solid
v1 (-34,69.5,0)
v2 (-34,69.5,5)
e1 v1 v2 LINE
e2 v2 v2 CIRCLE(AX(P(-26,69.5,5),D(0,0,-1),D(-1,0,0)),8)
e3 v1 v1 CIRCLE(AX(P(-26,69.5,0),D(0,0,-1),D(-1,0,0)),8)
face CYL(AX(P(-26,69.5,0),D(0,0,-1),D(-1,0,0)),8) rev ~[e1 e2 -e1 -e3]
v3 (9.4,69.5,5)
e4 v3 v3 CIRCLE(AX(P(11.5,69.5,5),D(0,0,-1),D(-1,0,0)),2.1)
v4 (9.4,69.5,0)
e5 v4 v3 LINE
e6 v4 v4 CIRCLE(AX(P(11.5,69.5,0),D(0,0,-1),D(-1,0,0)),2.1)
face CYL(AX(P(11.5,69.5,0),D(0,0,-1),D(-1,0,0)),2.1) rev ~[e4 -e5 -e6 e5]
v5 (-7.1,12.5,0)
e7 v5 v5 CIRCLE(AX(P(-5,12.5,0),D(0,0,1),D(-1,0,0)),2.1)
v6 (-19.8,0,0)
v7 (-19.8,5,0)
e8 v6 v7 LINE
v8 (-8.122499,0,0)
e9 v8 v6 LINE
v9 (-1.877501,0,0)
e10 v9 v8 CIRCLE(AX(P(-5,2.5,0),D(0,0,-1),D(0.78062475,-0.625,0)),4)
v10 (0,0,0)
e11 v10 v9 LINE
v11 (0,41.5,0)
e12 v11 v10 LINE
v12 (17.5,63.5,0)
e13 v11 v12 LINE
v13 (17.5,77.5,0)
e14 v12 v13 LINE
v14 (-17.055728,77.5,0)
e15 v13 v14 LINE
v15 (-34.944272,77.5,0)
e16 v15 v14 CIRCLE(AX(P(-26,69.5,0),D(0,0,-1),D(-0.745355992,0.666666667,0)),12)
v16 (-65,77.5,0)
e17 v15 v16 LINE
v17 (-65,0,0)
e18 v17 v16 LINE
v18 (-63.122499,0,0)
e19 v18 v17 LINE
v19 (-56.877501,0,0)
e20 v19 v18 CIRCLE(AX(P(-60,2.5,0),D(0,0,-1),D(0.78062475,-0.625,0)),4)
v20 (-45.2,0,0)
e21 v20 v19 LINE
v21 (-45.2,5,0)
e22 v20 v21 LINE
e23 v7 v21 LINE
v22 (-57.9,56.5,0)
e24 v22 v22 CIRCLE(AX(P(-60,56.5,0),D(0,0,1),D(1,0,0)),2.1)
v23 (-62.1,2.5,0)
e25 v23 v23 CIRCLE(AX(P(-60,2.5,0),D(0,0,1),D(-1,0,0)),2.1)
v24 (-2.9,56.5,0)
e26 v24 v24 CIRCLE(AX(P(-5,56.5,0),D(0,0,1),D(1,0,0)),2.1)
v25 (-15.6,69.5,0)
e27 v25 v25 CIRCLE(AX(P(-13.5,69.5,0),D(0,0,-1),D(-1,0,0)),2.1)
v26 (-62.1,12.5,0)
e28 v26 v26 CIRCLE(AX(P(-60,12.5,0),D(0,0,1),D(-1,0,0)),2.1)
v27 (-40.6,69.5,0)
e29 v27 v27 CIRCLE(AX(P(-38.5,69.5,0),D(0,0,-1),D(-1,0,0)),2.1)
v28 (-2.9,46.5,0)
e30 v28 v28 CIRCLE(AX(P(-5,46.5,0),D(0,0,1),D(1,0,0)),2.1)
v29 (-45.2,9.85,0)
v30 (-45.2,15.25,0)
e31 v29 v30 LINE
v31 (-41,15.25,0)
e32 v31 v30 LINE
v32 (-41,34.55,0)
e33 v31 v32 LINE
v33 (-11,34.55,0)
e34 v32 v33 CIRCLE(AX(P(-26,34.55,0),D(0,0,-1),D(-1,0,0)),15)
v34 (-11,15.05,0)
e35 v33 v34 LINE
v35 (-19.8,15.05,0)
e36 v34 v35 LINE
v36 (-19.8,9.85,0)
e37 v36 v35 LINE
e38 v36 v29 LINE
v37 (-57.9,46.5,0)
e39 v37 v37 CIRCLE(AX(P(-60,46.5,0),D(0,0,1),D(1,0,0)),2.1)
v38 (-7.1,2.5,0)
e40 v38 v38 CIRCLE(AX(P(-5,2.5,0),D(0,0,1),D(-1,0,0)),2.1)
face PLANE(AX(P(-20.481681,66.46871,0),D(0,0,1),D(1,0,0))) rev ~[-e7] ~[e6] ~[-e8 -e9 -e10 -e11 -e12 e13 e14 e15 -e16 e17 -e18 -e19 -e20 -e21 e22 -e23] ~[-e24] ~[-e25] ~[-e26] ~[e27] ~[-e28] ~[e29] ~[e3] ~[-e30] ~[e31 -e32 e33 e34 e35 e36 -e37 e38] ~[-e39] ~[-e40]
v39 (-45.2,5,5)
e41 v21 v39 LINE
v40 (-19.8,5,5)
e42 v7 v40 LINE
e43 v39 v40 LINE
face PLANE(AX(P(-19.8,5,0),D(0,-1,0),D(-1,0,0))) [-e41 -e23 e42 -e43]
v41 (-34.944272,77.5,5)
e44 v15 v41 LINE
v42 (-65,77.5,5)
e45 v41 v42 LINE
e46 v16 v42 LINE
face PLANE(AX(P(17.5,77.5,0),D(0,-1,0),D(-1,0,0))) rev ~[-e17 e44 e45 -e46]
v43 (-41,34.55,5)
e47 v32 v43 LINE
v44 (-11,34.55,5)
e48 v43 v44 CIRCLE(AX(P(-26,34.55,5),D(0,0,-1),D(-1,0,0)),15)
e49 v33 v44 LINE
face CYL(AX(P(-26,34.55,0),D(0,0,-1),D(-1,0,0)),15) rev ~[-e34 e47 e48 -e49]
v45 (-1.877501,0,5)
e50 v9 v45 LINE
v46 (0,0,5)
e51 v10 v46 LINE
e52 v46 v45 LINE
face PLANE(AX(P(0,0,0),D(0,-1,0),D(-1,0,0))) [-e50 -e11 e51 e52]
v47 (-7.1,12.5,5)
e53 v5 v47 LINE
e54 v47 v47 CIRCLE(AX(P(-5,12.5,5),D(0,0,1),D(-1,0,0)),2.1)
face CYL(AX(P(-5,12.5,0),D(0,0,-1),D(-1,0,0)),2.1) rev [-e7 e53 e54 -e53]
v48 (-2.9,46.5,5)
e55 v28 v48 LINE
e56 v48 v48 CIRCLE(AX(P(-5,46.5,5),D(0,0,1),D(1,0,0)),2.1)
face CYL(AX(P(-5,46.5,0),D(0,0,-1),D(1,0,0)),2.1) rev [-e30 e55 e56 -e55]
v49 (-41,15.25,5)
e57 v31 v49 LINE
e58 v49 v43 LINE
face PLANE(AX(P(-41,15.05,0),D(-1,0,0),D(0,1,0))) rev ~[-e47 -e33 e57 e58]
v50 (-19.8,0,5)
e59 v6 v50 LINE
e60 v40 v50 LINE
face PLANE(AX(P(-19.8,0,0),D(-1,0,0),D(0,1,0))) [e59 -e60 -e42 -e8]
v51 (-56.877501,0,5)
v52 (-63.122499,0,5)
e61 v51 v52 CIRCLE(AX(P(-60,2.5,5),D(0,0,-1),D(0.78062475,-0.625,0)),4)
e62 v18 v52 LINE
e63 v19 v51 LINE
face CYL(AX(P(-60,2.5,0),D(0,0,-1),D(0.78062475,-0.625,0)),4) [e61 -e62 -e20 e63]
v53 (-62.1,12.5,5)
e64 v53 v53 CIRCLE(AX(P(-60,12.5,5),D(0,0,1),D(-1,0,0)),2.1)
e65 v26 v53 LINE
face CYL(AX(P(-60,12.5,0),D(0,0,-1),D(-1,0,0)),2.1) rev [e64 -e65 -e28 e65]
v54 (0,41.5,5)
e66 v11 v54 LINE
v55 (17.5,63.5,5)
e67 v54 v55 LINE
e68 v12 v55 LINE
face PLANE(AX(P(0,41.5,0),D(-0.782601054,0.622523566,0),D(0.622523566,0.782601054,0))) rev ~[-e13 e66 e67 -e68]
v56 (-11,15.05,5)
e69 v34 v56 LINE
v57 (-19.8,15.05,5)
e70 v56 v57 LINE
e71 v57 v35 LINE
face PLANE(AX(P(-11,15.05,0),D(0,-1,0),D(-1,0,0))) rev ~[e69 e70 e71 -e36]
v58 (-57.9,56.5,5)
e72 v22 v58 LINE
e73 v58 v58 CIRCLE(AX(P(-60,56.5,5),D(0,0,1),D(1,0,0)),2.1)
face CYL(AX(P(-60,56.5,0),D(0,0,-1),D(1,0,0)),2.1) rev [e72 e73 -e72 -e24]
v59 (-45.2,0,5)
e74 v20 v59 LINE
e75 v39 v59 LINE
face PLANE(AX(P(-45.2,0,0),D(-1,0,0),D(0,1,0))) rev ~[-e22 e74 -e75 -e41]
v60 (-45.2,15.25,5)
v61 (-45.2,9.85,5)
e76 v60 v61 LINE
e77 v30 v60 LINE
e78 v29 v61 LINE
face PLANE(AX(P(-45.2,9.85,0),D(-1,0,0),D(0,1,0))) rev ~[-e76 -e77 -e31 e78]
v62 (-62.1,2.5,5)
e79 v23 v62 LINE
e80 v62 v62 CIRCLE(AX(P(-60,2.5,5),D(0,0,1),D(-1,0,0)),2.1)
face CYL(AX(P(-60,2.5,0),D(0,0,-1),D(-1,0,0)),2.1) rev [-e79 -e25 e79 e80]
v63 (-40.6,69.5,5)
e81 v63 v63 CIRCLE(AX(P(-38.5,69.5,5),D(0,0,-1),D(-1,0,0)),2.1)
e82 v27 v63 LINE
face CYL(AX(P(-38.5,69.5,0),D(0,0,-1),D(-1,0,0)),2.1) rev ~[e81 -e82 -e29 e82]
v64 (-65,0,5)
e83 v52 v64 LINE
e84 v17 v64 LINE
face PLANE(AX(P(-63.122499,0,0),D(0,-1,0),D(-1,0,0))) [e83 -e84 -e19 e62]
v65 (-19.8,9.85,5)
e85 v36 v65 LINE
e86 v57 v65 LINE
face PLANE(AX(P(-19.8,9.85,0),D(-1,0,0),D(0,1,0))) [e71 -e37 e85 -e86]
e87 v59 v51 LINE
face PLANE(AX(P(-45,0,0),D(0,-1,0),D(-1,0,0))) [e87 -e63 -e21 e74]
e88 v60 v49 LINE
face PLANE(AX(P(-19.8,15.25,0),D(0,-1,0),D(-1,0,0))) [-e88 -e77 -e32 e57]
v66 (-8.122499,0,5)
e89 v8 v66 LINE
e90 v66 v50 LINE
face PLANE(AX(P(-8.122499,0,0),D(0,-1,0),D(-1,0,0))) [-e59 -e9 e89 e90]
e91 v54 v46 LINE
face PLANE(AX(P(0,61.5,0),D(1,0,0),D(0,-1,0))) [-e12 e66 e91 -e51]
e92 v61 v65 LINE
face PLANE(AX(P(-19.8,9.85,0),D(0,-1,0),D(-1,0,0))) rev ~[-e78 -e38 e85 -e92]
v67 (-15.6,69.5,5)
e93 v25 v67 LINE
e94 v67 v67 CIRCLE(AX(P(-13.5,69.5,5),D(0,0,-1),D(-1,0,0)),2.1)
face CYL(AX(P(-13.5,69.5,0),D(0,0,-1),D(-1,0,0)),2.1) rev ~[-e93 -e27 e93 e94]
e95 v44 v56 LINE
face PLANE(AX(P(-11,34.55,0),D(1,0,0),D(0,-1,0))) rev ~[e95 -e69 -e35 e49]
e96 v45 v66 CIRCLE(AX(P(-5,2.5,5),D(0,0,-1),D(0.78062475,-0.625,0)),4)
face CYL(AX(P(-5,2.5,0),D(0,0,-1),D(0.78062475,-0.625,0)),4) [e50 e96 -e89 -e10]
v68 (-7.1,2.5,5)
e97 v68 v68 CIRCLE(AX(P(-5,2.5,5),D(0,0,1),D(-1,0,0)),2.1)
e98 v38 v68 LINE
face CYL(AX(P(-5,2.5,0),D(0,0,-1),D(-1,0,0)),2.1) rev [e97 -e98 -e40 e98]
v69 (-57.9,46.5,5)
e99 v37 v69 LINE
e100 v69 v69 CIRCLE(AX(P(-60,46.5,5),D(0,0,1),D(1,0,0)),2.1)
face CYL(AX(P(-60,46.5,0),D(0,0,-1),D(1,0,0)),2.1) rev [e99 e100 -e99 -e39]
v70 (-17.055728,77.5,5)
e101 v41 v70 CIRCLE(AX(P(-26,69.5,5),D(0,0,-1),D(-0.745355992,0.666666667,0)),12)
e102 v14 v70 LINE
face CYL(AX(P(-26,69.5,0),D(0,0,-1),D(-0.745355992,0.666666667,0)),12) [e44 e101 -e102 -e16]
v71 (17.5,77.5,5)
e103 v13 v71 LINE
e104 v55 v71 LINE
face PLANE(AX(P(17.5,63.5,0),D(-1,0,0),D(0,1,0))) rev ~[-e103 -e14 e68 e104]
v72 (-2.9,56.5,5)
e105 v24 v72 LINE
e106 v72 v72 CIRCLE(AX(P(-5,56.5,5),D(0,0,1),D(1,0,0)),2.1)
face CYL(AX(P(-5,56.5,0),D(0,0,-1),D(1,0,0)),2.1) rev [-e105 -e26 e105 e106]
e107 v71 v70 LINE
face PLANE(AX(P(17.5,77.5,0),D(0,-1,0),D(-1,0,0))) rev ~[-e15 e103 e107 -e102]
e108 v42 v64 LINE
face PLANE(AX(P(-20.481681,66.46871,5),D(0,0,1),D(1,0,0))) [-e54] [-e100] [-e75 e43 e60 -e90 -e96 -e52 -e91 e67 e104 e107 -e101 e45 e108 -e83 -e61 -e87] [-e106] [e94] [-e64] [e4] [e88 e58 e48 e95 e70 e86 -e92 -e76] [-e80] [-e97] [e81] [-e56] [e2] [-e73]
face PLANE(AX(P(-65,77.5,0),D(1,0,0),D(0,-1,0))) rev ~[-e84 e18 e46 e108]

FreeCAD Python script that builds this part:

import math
import FreeCAD as App
import Part
import Sketcher
from FreeCAD import Vector
Q = App.Units.Quantity


def add_polygon(sketch, points):
    """Adds a closed chain of lines whose ends are joined by coincident constraints."""
    first, n = sketch.GeometryCount, len(points)
    for a, b in zip(points, points[1:] + points[:1]):
        sketch.addGeometry(Part.LineSegment(App.Vector(*a, 0), App.Vector(*b, 0)), False)
    for i in range(n):
        sketch.addConstraint(Sketcher.Constraint("Coincident", first + i, 2, first + (i + 1) % n, 1))

doc = App.newDocument("Part")
body = doc.addObject("PartDesign::Body", "Body")

# Sketch on XY plane
sketch1 = body.newObject("Sketcher::SketchObject", "Sketch")
sketch1.AttachmentSupport = (doc.getObject("XY_Plane"), [""])
sketch1.MapMode = "FlatFace"
sketch1.addGeometry(Part.LineSegment(Vector(0, 61.5, 0), Vector(-65, 61.5, 0)), False)  # 0
sketch1.addGeometry(Part.LineSegment(Vector(-65, 61.5, 0), Vector(-65, 0, 0)), False)  # 1
sketch1.addGeometry(Part.LineSegment(Vector(-65, 0, 0), Vector(-63.1, 0, 0)), False)  # 2
sketch1.addGeometry(Part.ArcOfCircle(Part.Circle(Vector(-60, 2.5, 0), Vector(0, 0, 1), 4), math.radians(-141), math.radians(-39)), False)  # 3
sketch1.addGeometry(Part.LineSegment(Vector(-56.9, 0, 0), Vector(-45, 0, 0)), False)  # 4
sketch1.addGeometry(Part.LineSegment(Vector(-45, 0, 0), Vector(-45, 5, 0)), False)  # 5
sketch1.addGeometry(Part.LineSegment(Vector(-45, 5, 0), Vector(-20, 5, 0)), False)  # 6
sketch1.addGeometry(Part.LineSegment(Vector(-20, 5, 0), Vector(-20, 0, 0)), False)  # 7
sketch1.addGeometry(Part.LineSegment(Vector(-20, 0, 0), Vector(-8.1, 0, 0)), False)  # 8
sketch1.addGeometry(Part.ArcOfCircle(Part.Circle(Vector(-5, 2.5, 0), Vector(0, 0, 1), 4), math.radians(-141), math.radians(-39)), False)  # 9
sketch1.addGeometry(Part.LineSegment(Vector(-1.9, 0, 0), Vector(0, 0, 0)), False)  # 10
sketch1.addGeometry(Part.LineSegment(Vector(0, 0, 0), Vector(0, 61.5, 0)), False)  # 11
sketch1.addGeometry(Part.Circle(Vector(-5, 2.5, 0), Vector(0, 0, 1), 2.1), False)  # 12
sketch1.addGeometry(Part.Circle(Vector(-5, 12.5, 0), Vector(0, 0, 1), 2.1), False)  # 13
add_polygon(sketch1, [(-45, 9.9), (-45, 15.1), (-20, 15.1), (-20, 9.9)])  # lines 14-17
sketch1.addGeometry(Part.Circle(Vector(-60, 2.5, 0), Vector(0, 0, 1), 2.1), False)  # 18
sketch1.addGeometry(Part.Circle(Vector(-60, 12.5, 0), Vector(0, 0, 1), 2.1), False)  # 19
sketch1.addGeometry(Part.Circle(Vector(-5, 46.5, 0), Vector(0, 0, 1), 2.1), False)  # 20
sketch1.addGeometry(Part.Circle(Vector(-5, 56.5, 0), Vector(0, 0, 1), 2.1), False)  # 21
sketch1.addGeometry(Part.Circle(Vector(-60, 46.5, 0), Vector(0, 0, 1), 2.1), False)  # 22
sketch1.addGeometry(Part.Circle(Vector(-60, 56.5, 0), Vector(0, 0, 1), 2.1), False)  # 23
sketch1.addConstraint([
    Sketcher.Constraint("Coincident", 0, 2, 1, 1),
    Sketcher.Constraint("Coincident", 1, 2, 2, 1),
    Sketcher.Constraint("Coincident", 2, 2, 3, 1),
    Sketcher.Constraint("Coincident", 3, 2, 4, 1),
    Sketcher.Constraint("Coincident", 4, 2, 5, 1),
    Sketcher.Constraint("Coincident", 5, 2, 6, 1),
    Sketcher.Constraint("Coincident", 6, 2, 7, 1),
    Sketcher.Constraint("Coincident", 7, 2, 8, 1),
    Sketcher.Constraint("Coincident", 8, 2, 9, 1),
    Sketcher.Constraint("Coincident", 9, 2, 10, 1),
    Sketcher.Constraint("Coincident", 10, 2, 11, 1),
    Sketcher.Constraint("Coincident", 11, 2, 0, 1),
    Sketcher.Constraint("Horizontal", 0),
    Sketcher.Constraint("Vertical", 1),
    Sketcher.Constraint("Horizontal", 2),
    Sketcher.Constraint("Horizontal", 4),
    Sketcher.Constraint("Vertical", 5),
    Sketcher.Constraint("Horizontal", 6),
    Sketcher.Constraint("Vertical", 7),
    Sketcher.Constraint("Horizontal", 8),
    Sketcher.Constraint("Horizontal", 10),
    Sketcher.Constraint("Vertical", 11),
    Sketcher.Constraint("Vertical", 14),
    Sketcher.Constraint("Horizontal", 15),
    Sketcher.Constraint("Vertical", 16),
    Sketcher.Constraint("Horizontal", 17),
    Sketcher.Constraint("Coincident", 10, 2, -1, 1),
    Sketcher.Constraint("Coincident", 12, 3, 9, 3),
    Sketcher.Constraint("Coincident", 18, 3, 3, 3),
    Sketcher.Constraint("Equal", 3, 9),
    Sketcher.Constraint("Equal", 12, 13),
    Sketcher.Constraint("Equal", 13, 18),
    Sketcher.Constraint("Equal", 18, 19),
    Sketcher.Constraint("Equal", 19, 20),
    Sketcher.Constraint("Equal", 20, 21),
    Sketcher.Constraint("Equal", 21, 22),
    Sketcher.Constraint("Equal", 22, 23),
    Sketcher.Constraint("PointOnObject", 1, 2, -1),
    Sketcher.Constraint("PointOnObject", 3, 2, -1),
    Sketcher.Constraint("PointOnObject", 7, 2, -1),
    Sketcher.Constraint("Horizontal", 3, 3, 9, 3),
    Sketcher.Constraint("Horizontal", 13, 3, 19, 3),
    Sketcher.Constraint("Horizontal", 20, 3, 22, 3),
    Sketcher.Constraint("Horizontal", 21, 3, 23, 3),
    Sketcher.Constraint("Vertical", 12, 3, 13, 3),
    Sketcher.Constraint("Vertical", 18, 3, 19, 3),
    Sketcher.Constraint("Vertical", 13, 3, 20, 3),
    Sketcher.Constraint("Vertical", 20, 3, 21, 3),
    Sketcher.Constraint("Vertical", 19, 3, 22, 3),
    Sketcher.Constraint("Vertical", 22, 3, 23, 3),
    Sketcher.Constraint("Vertical", 5, 2, 14, 2),
    Sketcher.Constraint("Vertical", 7, 2, 15, 2),
    Sketcher.Constraint("Equal", 4, 8),
    Sketcher.Constraint("Equal", 2, 10),
    Sketcher.Constraint("Radius", 3, Q("4 mm")),
    Sketcher.Constraint("Diameter", 12, Q("4.2 mm")),
    Sketcher.Constraint("DistanceX", 0, 2, 0, 1, Q("65 mm")),
    Sketcher.Constraint("DistanceX", 6, 1, 6, 2, Q("25 mm")),
    Sketcher.Constraint("DistanceY", 5, 1, 5, 2, Q("5 mm")),
    Sketcher.Constraint("DistanceY", 1, 2, 1, 1, Q("61.5 mm")),
    Sketcher.Constraint("DistanceY", 14, 1, 14, 2, Q("5.1 mm")),
    Sketcher.Constraint("DistanceX", 3, 3, -1, 1, Q("60 mm")),
    Sketcher.Constraint("DistanceY", 9, 3, 13, 3, Q("10 mm")),
    Sketcher.Constraint("DistanceY", 13, 3, 20, 3, Q("34 mm")),
    Sketcher.Constraint("DistanceY", 20, 3, 21, 3, Q("10 mm")),
    Sketcher.Constraint("DistanceY", 23, 3, 0, 2, Q("5 mm")),
    Sketcher.Constraint("DistanceY", -1, 1, 14, 2, Q("15.05 mm")),
])
pad1 = body.newObject("PartDesign::Pad", "Pad")
pad1.Profile = sketch1
pad1.Length = 5

# Sketch on XY plane
sketch2 = body.newObject("Sketcher::SketchObject", "Sketch001")
sketch2.AttachmentSupport = (doc.getObject("XY_Plane"), [""])
sketch2.MapMode = "FlatFace"
sketch2.addGeometry([
    Part.LineSegment(Vector(-41, 15, 0), Vector(-41, 35, 0)),
    Part.ArcOfCircle(Part.Circle(Vector(-26, 35, 0), Vector(0, 0, 1), 15), math.radians(0), math.radians(180)),
    Part.LineSegment(Vector(-11, 35, 0), Vector(-11, 15, 0)),
    Part.LineSegment(Vector(-11, 15, 0), Vector(-41, 15, 0)),
], False)
sketch2.addConstraint([
    Sketcher.Constraint("Tangent", 0, 2, 1, 2),
    Sketcher.Constraint("Tangent", 1, 1, 2, 1),
    Sketcher.Constraint("Coincident", 2, 2, 3, 1),
    Sketcher.Constraint("Coincident", 3, 2, 0, 1),
    Sketcher.Constraint("Vertical", 0),
    Sketcher.Constraint("Vertical", 2),
    Sketcher.Constraint("Horizontal", 3),
    Sketcher.Constraint("Radius", 1, Q("15 mm")),
    Sketcher.Constraint("DistanceY", 0, 1, 0, 2, Q("19.5 mm")),
    Sketcher.Constraint("DistanceX", 1, 3, -1, 1, Q("26 mm")),
    Sketcher.Constraint("DistanceY", -1, 1, 1, 3, Q("34.55 mm")),
])
pocket1 = body.newObject("PartDesign::Pocket", "Pocket")
pocket1.Profile = sketch2
pocket1.Length = 5
pocket1.Reversed = True

# Sketch on XY plane
sketch3 = body.newObject("Sketcher::SketchObject", "Sketch002")
sketch3.AttachmentSupport = (doc.getObject("XY_Plane"), [""])
sketch3.MapMode = "FlatFace"
add_polygon(sketch3, [(17.5, 63.5), (0, 41.5), (0, 61.5), (-65, 61.5), (-65, 77.5), (17.5, 77.5)])  # lines 0-5
sketch3.addGeometry(Part.Circle(Vector(-38.5, 69.5, 0), Vector(0, 0, 1), 2.1), False)  # 6
sketch3.addGeometry(Part.Circle(Vector(-26, 69.5, 0), Vector(0, 0, 1), 4), False)  # 7
sketch3.addGeometry(Part.Circle(Vector(-13.5, 69.5, 0), Vector(0, 0, 1), 2.1), False)  # 8
sketch3.addGeometry(Part.Circle(Vector(11.5, 69.5, 0), Vector(0, 0, 1), 2.1), False)  # 9
sketch3.addConstraint([
    Sketcher.Constraint("Vertical", 1),
    Sketcher.Constraint("Horizontal", 2),
    Sketcher.Constraint("Vertical", 3),
    Sketcher.Constraint("Horizontal", 4),
    Sketcher.Constraint("Vertical", 5),
    Sketcher.Constraint("Equal", 6, 8),
    Sketcher.Constraint("Equal", 8, 9),
    Sketcher.Constraint("PointOnObject", 0, 2, -2),
    Sketcher.Constraint("Horizontal", 6, 3, 7, 3),
    Sketcher.Constraint("Horizontal", 7, 3, 8, 3),
    Sketcher.Constraint("Horizontal", 8, 3, 9, 3),
    Sketcher.Constraint("Diameter", 7, Q("8 mm")),
    Sketcher.Constraint("Diameter", 6, Q("4.2 mm")),
    Sketcher.Constraint("DistanceX", 2, 2, 2, 1, Q("65 mm")),
    Sketcher.Constraint("DistanceY", 1, 1, 1, 2, Q("20 mm")),
    Sketcher.Constraint("DistanceY", 3, 1, 3, 2, Q("16 mm")),
    Sketcher.Constraint("DistanceY", 5, 2, 5, 1, Q("14 mm")),
    Sketcher.Constraint("DistanceX", 4, 1, 4, 2, Q("82.5 mm")),
    Sketcher.Constraint("DistanceX", 7, 3, -1, 1, Q("26 mm")),
    Sketcher.Constraint("DistanceX", 6, 3, 8, 3, Q("25 mm")),
    Sketcher.Constraint("DistanceX", 8, 3, 9, 3, Q("25 mm")),
    Sketcher.Constraint("DistanceY", 0, 2, 9, 3, Q("28 mm")),
    Sketcher.Constraint("DistanceX", 9, 3, 4, 2, Q("6 mm")),
    Sketcher.Constraint("DistanceY", -1, 1, 6, 3, Q("69.5 mm")),
])
pad2 = body.newObject("PartDesign::Pad", "Pad001")
pad2.Profile = sketch3
pad2.Length = 5

# Sketch on XY plane
sketch4 = body.newObject("Sketcher::SketchObject", "Sketch003")
sketch4.AttachmentSupport = (doc.getObject("XY_Plane"), [""])
sketch4.MapMode = "FlatFace"
add_polygon(sketch4, [(-20, 5), (-20, 0), (-45, 0), (-45, 5)])  # lines 0-3
add_polygon(sketch4, [(-20, 15), (-20, 10), (-45, 10), (-45, 15)])  # lines 4-7
sketch4.addConstraint([
    Sketcher.Constraint("Vertical", 0),
    Sketcher.Constraint("Horizontal", 1),
    Sketcher.Constraint("Vertical", 2),
    Sketcher.Constraint("Horizontal", 3),
    Sketcher.Constraint("Vertical", 4),
    Sketcher.Constraint("Horizontal", 5),
    Sketcher.Constraint("Vertical", 6),
    Sketcher.Constraint("Horizontal", 7),
    Sketcher.Constraint("PointOnObject", 0, 2, -1),
    Sketcher.Constraint("Vertical", 3, 2, 4, 2),
    Sketcher.Constraint("Vertical", 2, 2, 5, 2),
    Sketcher.Constraint("DistanceY", 0, 2, 0, 1, Q("5 mm")),
    Sketcher.Constraint("DistanceX", 1, 2, 1, 1, Q("25.4 mm")),
    Sketcher.Constraint("DistanceY", 4, 2, 4, 1, Q("5.4 mm")),
    Sketcher.Constraint("DistanceX", 0, 2, -1, 1, Q("19.8 mm")),
    Sketcher.Constraint("DistanceY", -1, 1, 4, 2, Q("9.85 mm")),
])
pocket2 = body.newObject("PartDesign::Pocket", "Pocket001")
pocket2.Profile = sketch4
pocket2.Length = 10
pocket2.Reversed = True

# Sketch on XY plane
sketch5 = body.newObject("Sketcher::SketchObject", "Sketch004")
sketch5.AttachmentSupport = (doc.getObject("XY_Plane"), [""])
sketch5.MapMode = "FlatFace"
sketch5.addGeometry([
    Part.LineSegment(Vector(-17, 78, 0), Vector(-35, 78, 0)),
    Part.ArcOfCircle(Part.Circle(Vector(-26, 70, 0), Vector(0, 0, 1), 12), math.radians(42), math.radians(138)),
], False)
sketch5.addConstraint([
    Sketcher.Constraint("Coincident", 0, 1, 1, 1),
    Sketcher.Constraint("Coincident", 1, 2, 0, 2),
    Sketcher.Constraint("Horizontal", 0),
    Sketcher.Constraint("Radius", 1, Q("12 mm")),
    Sketcher.Constraint("DistanceX", 1, 3, -1, 1, Q("26 mm")),
    Sketcher.Constraint("DistanceY", 1, 3, 0, 1, Q("8 mm")),
    Sketcher.Constraint("DistanceY", -1, 1, 1, 3, Q("69.5 mm")),
])
pad3 = body.newObject("PartDesign::Pad", "Pad002")
pad3.Profile = sketch5
pad3.Length = 5

# Sketch on XY plane
sketch6 = body.newObject("Sketcher::SketchObject", "Sketch005")
sketch6.AttachmentSupport = (doc.getObject("XY_Plane"), [""])
sketch6.MapMode = "FlatFace"
sketch6.addGeometry(Part.Circle(Vector(-26, 70, 0), Vector(0, 0, 1), 8), False)
sketch6.addConstraint([
    Sketcher.Constraint("Diameter", 0, Q("16 mm")),
    Sketcher.Constraint("DistanceX", 0, 3, -1, 1, Q("26 mm")),
    Sketcher.Constraint("DistanceY", -1, 1, 0, 3, Q("69.5 mm")),
])
pocket3 = body.newObject("PartDesign::Pocket", "Pocket002")
pocket3.Profile = sketch6
pocket3.Length = 5
pocket3.Reversed = True

doc.recompute()
